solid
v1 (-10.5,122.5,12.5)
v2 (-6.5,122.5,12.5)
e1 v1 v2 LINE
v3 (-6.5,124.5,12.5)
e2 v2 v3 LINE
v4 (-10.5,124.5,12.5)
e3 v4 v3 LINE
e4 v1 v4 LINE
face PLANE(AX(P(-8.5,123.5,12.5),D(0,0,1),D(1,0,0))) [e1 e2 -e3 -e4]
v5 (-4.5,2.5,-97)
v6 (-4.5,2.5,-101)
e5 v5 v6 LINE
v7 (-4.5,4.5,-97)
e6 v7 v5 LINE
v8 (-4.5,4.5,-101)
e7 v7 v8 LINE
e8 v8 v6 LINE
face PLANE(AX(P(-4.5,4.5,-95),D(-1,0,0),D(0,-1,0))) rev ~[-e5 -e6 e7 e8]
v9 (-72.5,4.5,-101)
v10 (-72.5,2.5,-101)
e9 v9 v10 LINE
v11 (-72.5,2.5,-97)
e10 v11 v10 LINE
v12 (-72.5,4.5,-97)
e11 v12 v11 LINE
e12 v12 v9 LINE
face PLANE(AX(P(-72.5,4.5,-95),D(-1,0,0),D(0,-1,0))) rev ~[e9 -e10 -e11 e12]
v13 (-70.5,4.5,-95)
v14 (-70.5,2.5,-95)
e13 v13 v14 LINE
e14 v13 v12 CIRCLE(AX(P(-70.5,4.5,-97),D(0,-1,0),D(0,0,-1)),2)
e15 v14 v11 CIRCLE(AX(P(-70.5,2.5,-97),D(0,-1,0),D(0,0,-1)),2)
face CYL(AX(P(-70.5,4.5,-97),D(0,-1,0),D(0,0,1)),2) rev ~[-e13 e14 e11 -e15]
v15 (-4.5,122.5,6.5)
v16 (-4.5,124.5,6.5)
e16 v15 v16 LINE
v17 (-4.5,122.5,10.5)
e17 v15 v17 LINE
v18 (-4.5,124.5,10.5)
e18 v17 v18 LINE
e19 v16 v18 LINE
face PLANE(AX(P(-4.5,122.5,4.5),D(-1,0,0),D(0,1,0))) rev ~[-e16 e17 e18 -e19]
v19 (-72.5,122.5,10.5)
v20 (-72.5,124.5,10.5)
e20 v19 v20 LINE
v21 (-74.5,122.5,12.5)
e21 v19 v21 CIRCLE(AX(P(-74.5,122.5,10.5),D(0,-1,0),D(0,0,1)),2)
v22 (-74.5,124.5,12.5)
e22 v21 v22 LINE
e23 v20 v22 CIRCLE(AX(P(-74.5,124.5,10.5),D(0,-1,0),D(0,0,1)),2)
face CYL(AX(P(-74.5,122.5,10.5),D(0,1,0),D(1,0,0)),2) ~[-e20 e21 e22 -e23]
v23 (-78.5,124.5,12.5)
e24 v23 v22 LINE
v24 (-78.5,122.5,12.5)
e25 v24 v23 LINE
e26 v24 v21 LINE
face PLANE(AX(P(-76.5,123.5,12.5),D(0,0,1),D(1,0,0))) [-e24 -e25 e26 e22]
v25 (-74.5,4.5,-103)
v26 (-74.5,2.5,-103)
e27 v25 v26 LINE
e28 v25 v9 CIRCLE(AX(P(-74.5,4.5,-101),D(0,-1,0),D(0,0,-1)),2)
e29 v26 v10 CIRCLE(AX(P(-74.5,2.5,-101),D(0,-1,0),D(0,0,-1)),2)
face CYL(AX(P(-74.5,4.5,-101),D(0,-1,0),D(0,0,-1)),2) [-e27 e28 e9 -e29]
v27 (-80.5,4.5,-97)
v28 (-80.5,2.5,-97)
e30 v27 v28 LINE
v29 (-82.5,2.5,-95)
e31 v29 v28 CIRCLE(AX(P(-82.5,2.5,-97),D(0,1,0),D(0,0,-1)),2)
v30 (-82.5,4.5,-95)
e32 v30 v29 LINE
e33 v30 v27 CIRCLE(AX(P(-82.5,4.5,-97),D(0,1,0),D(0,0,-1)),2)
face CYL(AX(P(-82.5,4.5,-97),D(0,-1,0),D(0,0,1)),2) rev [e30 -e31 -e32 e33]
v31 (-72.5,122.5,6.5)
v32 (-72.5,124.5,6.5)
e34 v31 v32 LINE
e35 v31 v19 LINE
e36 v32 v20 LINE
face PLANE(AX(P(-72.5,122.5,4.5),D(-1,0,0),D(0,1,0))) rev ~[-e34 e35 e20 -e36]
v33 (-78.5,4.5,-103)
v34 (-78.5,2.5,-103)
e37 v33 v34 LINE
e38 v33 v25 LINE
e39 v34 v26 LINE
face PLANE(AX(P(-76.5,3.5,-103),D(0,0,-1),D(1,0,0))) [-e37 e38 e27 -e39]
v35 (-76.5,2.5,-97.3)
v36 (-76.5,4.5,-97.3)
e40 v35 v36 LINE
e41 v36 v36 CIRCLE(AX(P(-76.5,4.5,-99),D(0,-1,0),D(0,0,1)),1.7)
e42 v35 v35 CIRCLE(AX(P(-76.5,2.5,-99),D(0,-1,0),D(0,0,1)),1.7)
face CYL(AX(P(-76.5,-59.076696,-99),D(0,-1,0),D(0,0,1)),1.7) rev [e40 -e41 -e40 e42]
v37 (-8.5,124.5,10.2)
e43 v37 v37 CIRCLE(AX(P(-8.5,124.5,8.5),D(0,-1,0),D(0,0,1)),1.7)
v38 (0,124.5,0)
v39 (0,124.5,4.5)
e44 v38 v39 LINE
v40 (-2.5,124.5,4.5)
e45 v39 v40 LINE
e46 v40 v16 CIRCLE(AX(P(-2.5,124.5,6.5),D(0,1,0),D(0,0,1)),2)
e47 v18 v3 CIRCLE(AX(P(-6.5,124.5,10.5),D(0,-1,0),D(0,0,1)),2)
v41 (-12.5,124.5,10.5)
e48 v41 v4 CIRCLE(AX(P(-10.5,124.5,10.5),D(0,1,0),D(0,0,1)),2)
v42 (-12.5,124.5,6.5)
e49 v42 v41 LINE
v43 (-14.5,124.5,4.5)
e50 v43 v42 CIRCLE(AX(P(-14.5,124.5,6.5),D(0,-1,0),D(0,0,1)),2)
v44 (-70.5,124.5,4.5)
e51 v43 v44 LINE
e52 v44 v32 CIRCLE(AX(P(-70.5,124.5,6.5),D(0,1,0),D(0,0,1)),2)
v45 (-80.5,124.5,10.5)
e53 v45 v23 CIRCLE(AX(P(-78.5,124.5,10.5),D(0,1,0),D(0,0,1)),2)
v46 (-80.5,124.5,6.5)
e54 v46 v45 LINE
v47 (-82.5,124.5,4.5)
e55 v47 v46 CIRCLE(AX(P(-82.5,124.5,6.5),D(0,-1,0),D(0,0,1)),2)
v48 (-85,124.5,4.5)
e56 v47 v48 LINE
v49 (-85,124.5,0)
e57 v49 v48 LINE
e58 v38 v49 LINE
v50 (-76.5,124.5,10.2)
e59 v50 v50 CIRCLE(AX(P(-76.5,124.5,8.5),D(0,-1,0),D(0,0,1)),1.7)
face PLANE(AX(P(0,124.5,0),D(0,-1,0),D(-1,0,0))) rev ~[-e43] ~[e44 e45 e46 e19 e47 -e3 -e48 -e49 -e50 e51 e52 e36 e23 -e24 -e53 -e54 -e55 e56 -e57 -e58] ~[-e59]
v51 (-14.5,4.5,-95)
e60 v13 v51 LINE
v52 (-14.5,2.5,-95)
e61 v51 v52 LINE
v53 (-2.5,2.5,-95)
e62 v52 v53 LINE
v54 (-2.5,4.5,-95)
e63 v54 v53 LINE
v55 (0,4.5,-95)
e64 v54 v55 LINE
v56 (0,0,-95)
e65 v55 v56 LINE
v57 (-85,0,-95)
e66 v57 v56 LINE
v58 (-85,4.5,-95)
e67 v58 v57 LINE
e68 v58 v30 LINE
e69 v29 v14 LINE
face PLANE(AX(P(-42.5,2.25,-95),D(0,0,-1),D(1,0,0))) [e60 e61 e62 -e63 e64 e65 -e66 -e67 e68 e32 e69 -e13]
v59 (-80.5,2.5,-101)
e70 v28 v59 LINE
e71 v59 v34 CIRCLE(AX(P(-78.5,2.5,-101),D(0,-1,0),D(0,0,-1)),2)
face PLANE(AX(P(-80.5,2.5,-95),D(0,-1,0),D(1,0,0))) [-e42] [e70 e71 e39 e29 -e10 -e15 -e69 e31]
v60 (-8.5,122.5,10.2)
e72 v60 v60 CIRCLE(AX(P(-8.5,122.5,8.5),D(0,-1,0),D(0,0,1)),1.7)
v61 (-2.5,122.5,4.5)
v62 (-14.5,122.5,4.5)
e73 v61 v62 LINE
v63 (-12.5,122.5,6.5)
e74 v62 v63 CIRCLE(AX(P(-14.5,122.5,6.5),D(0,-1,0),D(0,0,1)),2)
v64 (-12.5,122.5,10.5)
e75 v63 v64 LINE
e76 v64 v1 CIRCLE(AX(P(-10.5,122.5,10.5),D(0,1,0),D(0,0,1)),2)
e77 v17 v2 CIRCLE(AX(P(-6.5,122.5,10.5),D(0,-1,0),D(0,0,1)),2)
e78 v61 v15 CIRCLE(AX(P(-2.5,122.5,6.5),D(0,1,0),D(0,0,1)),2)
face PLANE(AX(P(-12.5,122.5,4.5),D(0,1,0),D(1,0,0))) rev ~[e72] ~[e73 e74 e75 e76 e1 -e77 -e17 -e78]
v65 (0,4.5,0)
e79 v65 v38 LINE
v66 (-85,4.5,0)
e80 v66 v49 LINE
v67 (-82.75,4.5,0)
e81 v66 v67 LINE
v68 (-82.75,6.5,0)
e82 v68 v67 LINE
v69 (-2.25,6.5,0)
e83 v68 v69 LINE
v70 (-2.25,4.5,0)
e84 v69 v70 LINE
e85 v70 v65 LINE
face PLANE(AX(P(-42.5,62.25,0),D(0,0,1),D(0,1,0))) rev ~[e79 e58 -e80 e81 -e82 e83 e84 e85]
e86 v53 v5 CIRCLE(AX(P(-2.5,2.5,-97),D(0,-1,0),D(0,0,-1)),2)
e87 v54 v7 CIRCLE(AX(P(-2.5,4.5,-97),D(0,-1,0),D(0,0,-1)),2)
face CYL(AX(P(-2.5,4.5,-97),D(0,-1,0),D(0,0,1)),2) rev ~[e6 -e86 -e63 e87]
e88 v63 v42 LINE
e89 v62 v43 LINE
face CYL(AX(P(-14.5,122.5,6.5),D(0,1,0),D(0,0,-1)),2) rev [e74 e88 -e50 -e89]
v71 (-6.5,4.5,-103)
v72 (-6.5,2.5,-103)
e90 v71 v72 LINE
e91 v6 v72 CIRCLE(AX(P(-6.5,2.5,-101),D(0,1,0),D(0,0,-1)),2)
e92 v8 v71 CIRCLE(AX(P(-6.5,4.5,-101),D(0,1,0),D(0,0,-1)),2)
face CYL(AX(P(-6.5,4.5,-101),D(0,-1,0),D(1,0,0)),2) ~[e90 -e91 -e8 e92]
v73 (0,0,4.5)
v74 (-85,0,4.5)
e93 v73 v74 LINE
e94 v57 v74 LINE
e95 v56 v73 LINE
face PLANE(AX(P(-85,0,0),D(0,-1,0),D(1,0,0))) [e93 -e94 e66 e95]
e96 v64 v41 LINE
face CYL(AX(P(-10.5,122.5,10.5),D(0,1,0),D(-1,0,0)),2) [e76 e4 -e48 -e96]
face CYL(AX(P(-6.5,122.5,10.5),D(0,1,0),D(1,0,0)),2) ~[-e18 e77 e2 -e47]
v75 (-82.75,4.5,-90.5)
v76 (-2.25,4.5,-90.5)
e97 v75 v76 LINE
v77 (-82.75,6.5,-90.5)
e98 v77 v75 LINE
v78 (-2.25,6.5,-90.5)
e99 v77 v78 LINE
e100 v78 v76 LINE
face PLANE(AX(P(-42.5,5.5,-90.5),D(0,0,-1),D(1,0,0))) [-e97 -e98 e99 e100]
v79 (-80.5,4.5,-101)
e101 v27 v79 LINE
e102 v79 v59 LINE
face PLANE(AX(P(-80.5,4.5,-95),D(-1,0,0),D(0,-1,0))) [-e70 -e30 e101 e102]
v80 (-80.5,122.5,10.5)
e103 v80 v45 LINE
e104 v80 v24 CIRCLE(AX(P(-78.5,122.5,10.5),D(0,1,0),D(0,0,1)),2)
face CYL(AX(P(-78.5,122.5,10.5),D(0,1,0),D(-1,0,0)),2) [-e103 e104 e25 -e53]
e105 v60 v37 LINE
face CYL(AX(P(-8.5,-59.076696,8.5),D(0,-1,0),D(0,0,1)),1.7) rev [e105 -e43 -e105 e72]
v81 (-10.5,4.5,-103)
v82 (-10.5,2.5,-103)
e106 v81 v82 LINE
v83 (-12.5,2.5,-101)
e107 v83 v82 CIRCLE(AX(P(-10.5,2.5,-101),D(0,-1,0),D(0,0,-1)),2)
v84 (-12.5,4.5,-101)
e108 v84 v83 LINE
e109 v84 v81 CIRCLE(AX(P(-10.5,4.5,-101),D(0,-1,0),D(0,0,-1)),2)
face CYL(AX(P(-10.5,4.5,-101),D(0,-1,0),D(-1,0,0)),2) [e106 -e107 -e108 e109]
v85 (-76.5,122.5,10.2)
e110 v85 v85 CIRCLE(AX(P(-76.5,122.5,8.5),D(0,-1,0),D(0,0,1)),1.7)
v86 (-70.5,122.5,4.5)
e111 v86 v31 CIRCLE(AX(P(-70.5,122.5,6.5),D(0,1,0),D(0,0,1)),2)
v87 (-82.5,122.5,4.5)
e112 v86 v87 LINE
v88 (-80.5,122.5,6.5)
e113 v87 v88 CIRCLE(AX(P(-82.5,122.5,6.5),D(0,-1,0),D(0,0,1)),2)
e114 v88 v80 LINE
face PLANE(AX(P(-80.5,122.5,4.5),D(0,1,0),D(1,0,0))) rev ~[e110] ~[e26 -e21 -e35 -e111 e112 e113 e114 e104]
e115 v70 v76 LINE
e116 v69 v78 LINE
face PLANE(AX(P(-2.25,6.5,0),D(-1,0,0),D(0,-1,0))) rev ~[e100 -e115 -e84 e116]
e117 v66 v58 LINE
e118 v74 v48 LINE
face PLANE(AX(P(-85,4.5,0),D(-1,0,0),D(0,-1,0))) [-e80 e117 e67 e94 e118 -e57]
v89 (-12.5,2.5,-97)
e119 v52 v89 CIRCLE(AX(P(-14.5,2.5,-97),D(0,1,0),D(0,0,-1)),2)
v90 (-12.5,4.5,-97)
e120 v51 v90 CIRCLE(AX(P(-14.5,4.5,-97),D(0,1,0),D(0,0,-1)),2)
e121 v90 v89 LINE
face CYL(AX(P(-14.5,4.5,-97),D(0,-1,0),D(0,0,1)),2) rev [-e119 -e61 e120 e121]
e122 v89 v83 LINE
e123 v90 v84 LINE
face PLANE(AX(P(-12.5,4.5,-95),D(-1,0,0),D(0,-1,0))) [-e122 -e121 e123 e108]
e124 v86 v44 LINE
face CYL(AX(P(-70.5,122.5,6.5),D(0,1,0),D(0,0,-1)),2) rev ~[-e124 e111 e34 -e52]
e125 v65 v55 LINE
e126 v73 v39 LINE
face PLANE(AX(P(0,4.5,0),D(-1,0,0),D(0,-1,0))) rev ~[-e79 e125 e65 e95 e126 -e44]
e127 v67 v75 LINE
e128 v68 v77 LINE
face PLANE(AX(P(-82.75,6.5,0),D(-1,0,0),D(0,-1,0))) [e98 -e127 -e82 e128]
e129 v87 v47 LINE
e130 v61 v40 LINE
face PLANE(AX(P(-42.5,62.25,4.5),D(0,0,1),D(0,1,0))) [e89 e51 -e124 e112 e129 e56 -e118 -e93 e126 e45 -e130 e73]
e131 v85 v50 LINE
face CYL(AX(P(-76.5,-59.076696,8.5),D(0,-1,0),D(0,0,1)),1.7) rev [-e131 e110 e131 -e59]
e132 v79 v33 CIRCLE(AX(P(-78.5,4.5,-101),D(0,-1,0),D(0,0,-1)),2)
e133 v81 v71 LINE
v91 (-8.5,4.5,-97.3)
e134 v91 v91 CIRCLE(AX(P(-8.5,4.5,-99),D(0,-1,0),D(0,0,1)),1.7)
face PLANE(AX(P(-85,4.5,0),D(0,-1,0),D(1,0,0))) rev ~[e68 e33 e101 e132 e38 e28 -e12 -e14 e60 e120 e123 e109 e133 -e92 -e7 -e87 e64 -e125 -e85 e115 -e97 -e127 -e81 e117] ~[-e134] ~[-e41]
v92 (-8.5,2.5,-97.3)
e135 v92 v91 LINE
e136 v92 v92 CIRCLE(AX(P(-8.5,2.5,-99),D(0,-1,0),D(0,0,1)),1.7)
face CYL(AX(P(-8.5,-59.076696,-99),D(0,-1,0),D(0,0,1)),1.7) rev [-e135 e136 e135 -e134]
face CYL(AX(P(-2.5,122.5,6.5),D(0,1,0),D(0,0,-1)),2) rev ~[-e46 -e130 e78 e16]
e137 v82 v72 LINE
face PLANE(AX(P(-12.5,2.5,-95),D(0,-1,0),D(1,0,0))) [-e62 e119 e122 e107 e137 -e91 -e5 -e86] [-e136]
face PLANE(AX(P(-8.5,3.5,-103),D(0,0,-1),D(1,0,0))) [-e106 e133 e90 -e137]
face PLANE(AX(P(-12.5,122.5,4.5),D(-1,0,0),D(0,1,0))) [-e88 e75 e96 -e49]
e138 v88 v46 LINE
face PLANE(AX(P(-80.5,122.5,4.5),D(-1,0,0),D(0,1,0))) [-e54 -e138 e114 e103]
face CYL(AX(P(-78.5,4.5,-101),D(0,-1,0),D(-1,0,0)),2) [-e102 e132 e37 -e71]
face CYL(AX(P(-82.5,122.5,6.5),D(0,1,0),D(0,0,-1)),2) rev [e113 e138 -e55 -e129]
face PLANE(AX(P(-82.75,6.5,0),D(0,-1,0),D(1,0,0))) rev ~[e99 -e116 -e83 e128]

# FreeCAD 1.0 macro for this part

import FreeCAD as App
import Part
import Sketcher
Q = App.Units.Quantity


def edges_at(feature, points):
    """Names of the edges that pass closest to the given points."""
    edges = feature.Shape.Edges
    near = lambda p: min(range(len(edges)), key=lambda i: edges[i].distToShape(Part.Vertex(*p))[0])
    return sorted({f"Edge{near(p) + 1}" for p in points})


def add_polygon(sketch, points):
    """Adds a closed chain of lines whose ends are joined by coincident constraints."""
    first, n = sketch.GeometryCount, len(points)
    for a, b in zip(points, points[1:] + points[:1]):
        sketch.addGeometry(Part.LineSegment(App.Vector(*a, 0), App.Vector(*b, 0)), False)
    for i in range(n):
        sketch.addConstraint(Sketcher.Constraint("Coincident", first + i, 2, first + (i + 1) % n, 1))

doc = App.newDocument("Part")
params = doc.addObject("Spreadsheet::Sheet", "Params")
for row, (alias, value) in enumerate([
    ("sketch1_width", "85 mm"),
    ("sketch1_height", "124.5 mm"),
    ("pad1_length", "4.5 mm"),
    ("sketch2_width", "85 mm"),
    ("sketch2_height", "4.5 mm"),
    ("pad2_length", "95 mm"),
    ("sketch3_height", "2 mm"),
    ("sketch3_width", "80.5 mm"),
    ("pad3_length", "90.5 mm"),
    ("sketch4_width", "8 mm"),
    ("sketch4_height", "2 mm"),
    ("pad4_length", "8 mm"),
    ("sketch5_width", "8 mm"),
    ("sketch5_height", "2 mm"),
    ("pad5_length", "8 mm"),
    ("sketch6_diameter", "3.4 mm"),
    ("fillet_radius", "2 mm"),
], start=1):
    params.set(f"A{row}", alias)
    params.set(f"B{row}", "=" + value)
    params.setAlias(f"B{row}", alias)

body = doc.addObject("PartDesign::Body", "Body")

# Sketch on XY plane
sketch1 = body.newObject("Sketcher::SketchObject", "Sketch")
sketch1.AttachmentSupport = (doc.getObject("XY_Plane"), [""])
sketch1.MapMode = "FlatFace"
add_polygon(sketch1, [(-85, 0), (0, 0), (0, 124), (-85, 124)])  # lines 0-3
sketch1.addConstraint([
    Sketcher.Constraint("Horizontal", 0),
    Sketcher.Constraint("Vertical", 1),
    Sketcher.Constraint("Horizontal", 2),
    Sketcher.Constraint("Vertical", 3),
    Sketcher.Constraint("Coincident", 0, 2, -1, 1),
    Sketcher.Constraint("DistanceX", 0, 1, 0, 2, Q("85 mm")),
    Sketcher.Constraint("DistanceY", 1, 1, 1, 2, Q("124.5 mm")),
])
sketch1.setExpression("Constraints[9]", "Params.sketch1_width")
sketch1.setExpression("Constraints[10]", "Params.sketch1_height")
pad1 = body.newObject("PartDesign::Pad", "Pad")
pad1.Profile = sketch1
pad1.setExpression("Length", "Params.pad1_length")

# Sketch on XY plane
sketch2 = body.newObject("Sketcher::SketchObject", "Sketch001")
sketch2.AttachmentSupport = (doc.getObject("XY_Plane"), [""])
sketch2.MapMode = "FlatFace"
add_polygon(sketch2, [(-85, 0), (-85, 4.5), (0, 4.5), (0, 0)])  # lines 0-3
sketch2.addConstraint([
    Sketcher.Constraint("Vertical", 0),
    Sketcher.Constraint("Horizontal", 1),
    Sketcher.Constraint("Vertical", 2),
    Sketcher.Constraint("Horizontal", 3),
    Sketcher.Constraint("Coincident", 2, 2, -1, 1),
    Sketcher.Constraint("DistanceX", 1, 1, 1, 2, Q("85 mm")),
    Sketcher.Constraint("DistanceY", 0, 1, 0, 2, Q("4.5 mm")),
])
sketch2.setExpression("Constraints[9]", "Params.sketch2_width")
sketch2.setExpression("Constraints[10]", "Params.sketch2_height")
pad2 = body.newObject("PartDesign::Pad", "Pad001")
pad2.Profile = sketch2
pad2.setExpression("Length", "Params.pad2_length")
pad2.Reversed = True

# Sketch on XY plane
sketch3 = body.newObject("Sketcher::SketchObject", "Sketch002")
sketch3.AttachmentSupport = (doc.getObject("XY_Plane"), [""])
sketch3.MapMode = "FlatFace"
add_polygon(sketch3, [(-82.8, 4.5), (-82.8, 6.5), (-2.2, 6.5), (-2.2, 4.5)])  # lines 0-3
sketch3.addConstraint([
    Sketcher.Constraint("Vertical", 0),
    Sketcher.Constraint("Horizontal", 1),
    Sketcher.Constraint("Vertical", 2),
    Sketcher.Constraint("Horizontal", 3),
    Sketcher.Constraint("DistanceY", 0, 1, 0, 2, Q("2 mm")),
    Sketcher.Constraint("DistanceX", 1, 1, 1, 2, Q("80.5 mm")),
    Sketcher.Constraint("DistanceY", -1, 1, 0, 2, Q("6.5 mm")),
    Sketcher.Constraint("DistanceX", 0, 2, -1, 1, Q("82.75 mm")),
])
sketch3.setExpression("Constraints[8]", "Params.sketch3_height")
sketch3.setExpression("Constraints[9]", "Params.sketch3_width")
pad3 = body.newObject("PartDesign::Pad", "Pad002")
pad3.Profile = sketch3
pad3.setExpression("Length", "Params.pad3_length")
pad3.Reversed = True

# Sketch on XY plane
sketch4 = body.newObject("Sketcher::SketchObject", "Sketch003")
sketch4.AttachmentSupport = (doc.getObject("XY_Plane"), [""])
sketch4.MapMode = "FlatFace"
sketch4.AttachmentOffset = App.Placement(App.Vector(0, 0, 4.5), App.Rotation())
add_polygon(sketch4, [(-80.5, 124.5), (-80.5, 122.5), (-72.5, 122.5), (-72.5, 124.5)])  # lines 0-3
add_polygon(sketch4, [(-12.5, 124.5), (-12.5, 122.5), (-4.5, 122.5), (-4.5, 124.5)])  # lines 4-7
sketch4.addConstraint([
    Sketcher.Constraint("Vertical", 0),
    Sketcher.Constraint("Horizontal", 1),
    Sketcher.Constraint("Vertical", 2),
    Sketcher.Constraint("Horizontal", 3),
    Sketcher.Constraint("Vertical", 4),
    Sketcher.Constraint("Horizontal", 5),
    Sketcher.Constraint("Vertical", 6),
    Sketcher.Constraint("Horizontal", 7),
    Sketcher.Constraint("Horizontal", 1, 2, 4, 2),
    Sketcher.Constraint("Horizontal", 3, 2, 6, 2),
    Sketcher.Constraint("Equal", 3, 5),
    Sketcher.Constraint("DistanceX", 1, 1, 1, 2, Q("8 mm")),
    Sketcher.Constraint("DistanceY", 0, 2, 0, 1, Q("2 mm")),
    Sketcher.Constraint("DistanceX", 1, 2, 4, 2, Q("60 mm")),
    Sketcher.Constraint("DistanceX", 0, 2, -1, 1, Q("80.5 mm")),
    Sketcher.Constraint("DistanceY", -1, 1, 0, 2, Q("122.5 mm")),
])
sketch4.setExpression("Constraints[19]", "Params.sketch4_width")
sketch4.setExpression("Constraints[20]", "Params.sketch4_height")
pad4 = body.newObject("PartDesign::Pad", "Pad003")
pad4.Profile = sketch4
pad4.setExpression("Length", "Params.pad4_length")

# Sketch on XY plane
sketch5 = body.newObject("Sketcher::SketchObject", "Sketch004")
sketch5.AttachmentSupport = (doc.getObject("XY_Plane"), [""])
sketch5.MapMode = "FlatFace"
sketch5.AttachmentOffset = App.Placement(App.Vector(0, 0, -95), App.Rotation())
add_polygon(sketch5, [(-80.5, 2.5), (-80.5, 4.5), (-72.5, 4.5), (-72.5, 2.5)])  # lines 0-3
add_polygon(sketch5, [(-12.5, 2.5), (-12.5, 4.5), (-4.5, 4.5), (-4.5, 2.5)])  # lines 4-7
sketch5.addConstraint([
    Sketcher.Constraint("Vertical", 0),
    Sketcher.Constraint("Horizontal", 1),
    Sketcher.Constraint("Vertical", 2),
    Sketcher.Constraint("Horizontal", 3),
    Sketcher.Constraint("Vertical", 4),
    Sketcher.Constraint("Horizontal", 5),
    Sketcher.Constraint("Vertical", 6),
    Sketcher.Constraint("Horizontal", 7),
    Sketcher.Constraint("Horizontal", 1, 2, 4, 2),
    Sketcher.Constraint("Horizontal", 3, 2, 6, 2),
    Sketcher.Constraint("Equal", 3, 5),
    Sketcher.Constraint("DistanceX", 1, 1, 1, 2, Q("8 mm")),
    Sketcher.Constraint("DistanceY", 0, 1, 0, 2, Q("2 mm")),
    Sketcher.Constraint("DistanceX", 1, 2, 4, 2, Q("60 mm")),
    Sketcher.Constraint("DistanceX", 0, 2, -1, 1, Q("80.5 mm")),
    Sketcher.Constraint("DistanceY", -1, 1, 0, 2, Q("4.5 mm")),
])
sketch5.setExpression("Constraints[19]", "Params.sketch5_width")
sketch5.setExpression("Constraints[20]", "Params.sketch5_height")
pad5 = body.newObject("PartDesign::Pad", "Pad004")
pad5.Profile = sketch5
pad5.setExpression("Length", "Params.pad5_length")
pad5.Reversed = True

# Sketch on XZ plane
sketch6 = body.newObject("Sketcher::SketchObject", "Sketch005")
sketch6.AttachmentSupport = (doc.getObject("XZ_Plane"), [""])
sketch6.MapMode = "FlatFace"
sketch6.AttachmentOffset = App.Placement(App.Vector(0, 0, -124.5), App.Rotation())
sketch6.addGeometry([
    Part.Circle(App.Vector(-8.5, 8.5, 0), App.Vector(0, 0, 1), 1.7),
    Part.Circle(App.Vector(-76.5, 8.5, 0), App.Vector(0, 0, 1), 1.7),
    Part.Circle(App.Vector(-76.5, -99, 0), App.Vector(0, 0, 1), 1.7),
    Part.Circle(App.Vector(-8.5, -99, 0), App.Vector(0, 0, 1), 1.7),
], False)
sketch6.addConstraint([
    Sketcher.Constraint("Equal", 0, 1),
    Sketcher.Constraint("Equal", 1, 2),
    Sketcher.Constraint("Equal", 2, 3),
    Sketcher.Constraint("Horizontal", 0, 3, 1, 3),
    Sketcher.Constraint("Horizontal", 2, 3, 3, 3),
    Sketcher.Constraint("Vertical", 1, 3, 2, 3),
    Sketcher.Constraint("Vertical", 0, 3, 3, 3),
    Sketcher.Constraint("Diameter", 0, Q("3.4 mm")),
    Sketcher.Constraint("DistanceY", 2, 3, -1, 1, Q("99 mm")),
    Sketcher.Constraint("DistanceX", 1, 3, 0, 3, Q("68 mm")),
    Sketcher.Constraint("DistanceX", 0, 3, -1, 1, Q("8.5 mm")),
    Sketcher.Constraint("DistanceY", -1, 1, 0, 3, Q("8.5 mm")),
])
sketch6.setExpression("Constraints[7]", "Params.sketch6_diameter")
pocket1 = body.newObject("PartDesign::Pocket", "Pocket")
pocket1.Profile = sketch6
pocket1.Type = "ThroughAll"
pocket1.Midplane = True
doc.recompute()

fillet = body.newObject("PartDesign::Fillet", "Fillet")
fillet.Base = (pocket1, edges_at(pocket1, [
    (-80.5, 123.5, 4.5),
    (-72.5, 123.5, 4.5),
    (-80.5, 123.5, 12.5),
    (-72.5, 123.5, 12.5),
    (-4.5, 123.5, 4.5),
    (-12.5, 123.5, 4.5),
    (-4.5, 123.5, 12.5),
    (-12.5, 123.5, 12.5),
    (-80.5, 3.5, -95),
    (-72.5, 3.5, -95),
    (-80.5, 3.5, -103),
    (-72.5, 3.5, -103),
    (-4.5, 3.5, -95),
    (-12.5, 3.5, -95),
    (-4.5, 3.5, -103),
    (-12.5, 3.5, -103),
]))
fillet.setExpression("Radius", "Params.fillet_radius")

doc.recompute()
